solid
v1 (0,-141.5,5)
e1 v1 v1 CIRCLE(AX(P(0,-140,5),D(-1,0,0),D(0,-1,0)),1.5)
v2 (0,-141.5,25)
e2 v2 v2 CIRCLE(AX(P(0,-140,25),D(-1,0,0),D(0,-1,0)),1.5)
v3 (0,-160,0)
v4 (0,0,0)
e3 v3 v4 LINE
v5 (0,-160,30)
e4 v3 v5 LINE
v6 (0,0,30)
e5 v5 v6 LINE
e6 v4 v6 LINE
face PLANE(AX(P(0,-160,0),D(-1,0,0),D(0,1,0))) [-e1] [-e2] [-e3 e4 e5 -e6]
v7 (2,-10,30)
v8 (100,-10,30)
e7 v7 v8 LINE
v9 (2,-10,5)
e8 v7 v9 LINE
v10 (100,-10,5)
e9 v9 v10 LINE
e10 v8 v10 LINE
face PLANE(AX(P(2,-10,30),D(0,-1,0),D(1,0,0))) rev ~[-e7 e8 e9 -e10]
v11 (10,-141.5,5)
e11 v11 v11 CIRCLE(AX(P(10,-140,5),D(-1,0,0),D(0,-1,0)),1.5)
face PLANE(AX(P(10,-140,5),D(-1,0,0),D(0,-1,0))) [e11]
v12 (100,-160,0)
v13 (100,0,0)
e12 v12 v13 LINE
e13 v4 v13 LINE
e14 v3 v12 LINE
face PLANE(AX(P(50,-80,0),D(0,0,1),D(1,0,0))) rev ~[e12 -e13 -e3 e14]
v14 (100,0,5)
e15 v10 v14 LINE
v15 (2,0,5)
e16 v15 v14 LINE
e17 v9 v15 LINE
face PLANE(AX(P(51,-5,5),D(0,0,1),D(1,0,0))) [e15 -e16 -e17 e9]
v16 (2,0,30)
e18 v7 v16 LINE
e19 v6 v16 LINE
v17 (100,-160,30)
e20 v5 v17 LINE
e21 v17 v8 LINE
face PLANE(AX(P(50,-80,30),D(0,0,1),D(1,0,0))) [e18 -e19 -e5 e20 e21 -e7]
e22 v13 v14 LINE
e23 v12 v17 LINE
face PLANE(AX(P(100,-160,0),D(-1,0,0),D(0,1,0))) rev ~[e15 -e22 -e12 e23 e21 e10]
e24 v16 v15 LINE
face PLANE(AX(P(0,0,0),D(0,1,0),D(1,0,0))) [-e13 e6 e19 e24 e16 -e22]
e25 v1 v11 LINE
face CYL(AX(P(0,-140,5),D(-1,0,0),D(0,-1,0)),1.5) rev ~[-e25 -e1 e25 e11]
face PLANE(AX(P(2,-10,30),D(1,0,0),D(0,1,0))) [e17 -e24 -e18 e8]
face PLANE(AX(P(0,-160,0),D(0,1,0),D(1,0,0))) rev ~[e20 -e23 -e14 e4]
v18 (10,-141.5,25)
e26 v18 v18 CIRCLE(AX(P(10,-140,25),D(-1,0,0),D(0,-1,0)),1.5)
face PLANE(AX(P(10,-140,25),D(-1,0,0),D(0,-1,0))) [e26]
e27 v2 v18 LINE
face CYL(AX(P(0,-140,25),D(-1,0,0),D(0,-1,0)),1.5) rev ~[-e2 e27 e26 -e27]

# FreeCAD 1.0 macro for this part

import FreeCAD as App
import Part
import Sketcher
from FreeCAD import Vector

doc = App.newDocument("Part")
params = doc.addObject("Spreadsheet::Sheet", "Params")
for row, (alias, value) in enumerate([
    ("sketch1_width", "100 mm"),
    ("sketch1_height", "160 mm"),
    ("pad1_length", "30 mm"),
    ("sketch2_diameter", "3 mm"),
    ("pocket1_length", "10 mm"),
    ("sketch3_width", "98 mm"),
    ("sketch3_height", "10 mm"),
    ("pocket2_length", "25 mm"),
], start=1):
    params.set(f"A{row}", alias)
    params.set(f"B{row}", "=" + value)
    params.setAlias(f"B{row}", alias)

body = doc.addObject("PartDesign::Body", "Body")

# Sketch on XY plane
sketch1 = body.newObject("Sketcher::SketchObject", "Sketch")
sketch1.AttachmentSupport = (doc.getObject("XY_Plane"), [""])
sketch1.MapMode = "FlatFace"
sketch1.addGeometry([
    Part.LineSegment(Vector(0, 0, 0), Vector(0, -160, 0)),
    Part.LineSegment(Vector(0, -160, 0), Vector(100, -160, 0)),
    Part.LineSegment(Vector(100, -160, 0), Vector(100, 0, 0)),
    Part.LineSegment(Vector(100, 0, 0), Vector(0, 0, 0)),
], False)
sketch1.addConstraint([
    Sketcher.Constraint("Coincident", 0, 2, 1, 1),
    Sketcher.Constraint("Coincident", 1, 2, 2, 1),
    Sketcher.Constraint("Coincident", 2, 2, 3, 1),
    Sketcher.Constraint("Coincident", 3, 2, 0, 1),
    Sketcher.Constraint("Vertical", 0),
    Sketcher.Constraint("Horizontal", 1),
    Sketcher.Constraint("Vertical", 2),
    Sketcher.Constraint("Horizontal", 3),
    Sketcher.Constraint("Coincident", 3, 2, -1, 1),
    Sketcher.Constraint("DistanceX", 1, 1, 1, 2, 100.0),
    Sketcher.Constraint("DistanceY", 0, 2, 0, 1, 160.0),
])
sketch1.setExpression("Constraints[9]", "Params.sketch1_width")
sketch1.setExpression("Constraints[10]", "Params.sketch1_height")
pad1 = body.newObject("PartDesign::Pad", "Pad")
pad1.Profile = sketch1
pad1.setExpression("Length", "Params.pad1_length")

# Sketch on YZ plane
sketch2 = body.newObject("Sketcher::SketchObject", "Sketch001")
sketch2.AttachmentSupport = (doc.getObject("YZ_Plane"), [""])
sketch2.MapMode = "FlatFace"
sketch2.addGeometry([
    Part.Circle(Vector(-140, 25, 0), Vector(0, 0, 1), 1.5),
    Part.Circle(Vector(-140, 5, 0), Vector(0, 0, 1), 1.5),
], False)
sketch2.addConstraint([
    Sketcher.Constraint("Equal", 0, 1),
    Sketcher.Constraint("Vertical", 0, 3, 1, 3),
    Sketcher.Constraint("Diameter", 0, 3.0),
    Sketcher.Constraint("DistanceX", 0, 3, -1, 1, 140.0),
    Sketcher.Constraint("DistanceY", -1, 1, 0, 3, 25.0),
    Sketcher.Constraint("DistanceY", -1, 1, 1, 3, 5.0),
])
sketch2.setExpression("Constraints[2]", "Params.sketch2_diameter")
pocket1 = body.newObject("PartDesign::Pocket", "Pocket")
pocket1.Profile = sketch2
pocket1.setExpression("Length", "Params.pocket1_length")
pocket1.Reversed = True

# Sketch on XY plane
sketch3 = body.newObject("Sketcher::SketchObject", "Sketch002")
sketch3.AttachmentSupport = (doc.getObject("XY_Plane"), [""])
sketch3.MapMode = "FlatFace"
sketch3.AttachmentOffset = App.Placement(Vector(0, 0, 30), App.Rotation())
sketch3.addGeometry([
    Part.LineSegment(Vector(2, 0, 0), Vector(2, -10, 0)),
    Part.LineSegment(Vector(2, -10, 0), Vector(100, -10, 0)),
    Part.LineSegment(Vector(100, -10, 0), Vector(100, 0, 0)),
    Part.LineSegment(Vector(100, 0, 0), Vector(2, 0, 0)),
], False)
sketch3.addConstraint([
    Sketcher.Constraint("Coincident", 0, 2, 1, 1),
    Sketcher.Constraint("Coincident", 1, 2, 2, 1),
    Sketcher.Constraint("Coincident", 2, 2, 3, 1),
    Sketcher.Constraint("Coincident", 3, 2, 0, 1),
    Sketcher.Constraint("Vertical", 0),
    Sketcher.Constraint("Horizontal", 1),
    Sketcher.Constraint("Vertical", 2),
    Sketcher.Constraint("Horizontal", 3),
    Sketcher.Constraint("PointOnObject", 2, 2, -1),
    Sketcher.Constraint("DistanceX", 1, 1, 1, 2, 98.0),
    Sketcher.Constraint("DistanceY", 0, 2, 0, 1, 10.0),
    Sketcher.Constraint("DistanceX", -1, 1, 0, 2, 2.0),
])
sketch3.setExpression("Constraints[9]", "Params.sketch3_width")
sketch3.setExpression("Constraints[10]", "Params.sketch3_height")
pocket2 = body.newObject("PartDesign::Pocket", "Pocket001")
pocket2.Profile = sketch3
pocket2.setExpression("Length", "Params.pocket2_length")

doc.recompute()
